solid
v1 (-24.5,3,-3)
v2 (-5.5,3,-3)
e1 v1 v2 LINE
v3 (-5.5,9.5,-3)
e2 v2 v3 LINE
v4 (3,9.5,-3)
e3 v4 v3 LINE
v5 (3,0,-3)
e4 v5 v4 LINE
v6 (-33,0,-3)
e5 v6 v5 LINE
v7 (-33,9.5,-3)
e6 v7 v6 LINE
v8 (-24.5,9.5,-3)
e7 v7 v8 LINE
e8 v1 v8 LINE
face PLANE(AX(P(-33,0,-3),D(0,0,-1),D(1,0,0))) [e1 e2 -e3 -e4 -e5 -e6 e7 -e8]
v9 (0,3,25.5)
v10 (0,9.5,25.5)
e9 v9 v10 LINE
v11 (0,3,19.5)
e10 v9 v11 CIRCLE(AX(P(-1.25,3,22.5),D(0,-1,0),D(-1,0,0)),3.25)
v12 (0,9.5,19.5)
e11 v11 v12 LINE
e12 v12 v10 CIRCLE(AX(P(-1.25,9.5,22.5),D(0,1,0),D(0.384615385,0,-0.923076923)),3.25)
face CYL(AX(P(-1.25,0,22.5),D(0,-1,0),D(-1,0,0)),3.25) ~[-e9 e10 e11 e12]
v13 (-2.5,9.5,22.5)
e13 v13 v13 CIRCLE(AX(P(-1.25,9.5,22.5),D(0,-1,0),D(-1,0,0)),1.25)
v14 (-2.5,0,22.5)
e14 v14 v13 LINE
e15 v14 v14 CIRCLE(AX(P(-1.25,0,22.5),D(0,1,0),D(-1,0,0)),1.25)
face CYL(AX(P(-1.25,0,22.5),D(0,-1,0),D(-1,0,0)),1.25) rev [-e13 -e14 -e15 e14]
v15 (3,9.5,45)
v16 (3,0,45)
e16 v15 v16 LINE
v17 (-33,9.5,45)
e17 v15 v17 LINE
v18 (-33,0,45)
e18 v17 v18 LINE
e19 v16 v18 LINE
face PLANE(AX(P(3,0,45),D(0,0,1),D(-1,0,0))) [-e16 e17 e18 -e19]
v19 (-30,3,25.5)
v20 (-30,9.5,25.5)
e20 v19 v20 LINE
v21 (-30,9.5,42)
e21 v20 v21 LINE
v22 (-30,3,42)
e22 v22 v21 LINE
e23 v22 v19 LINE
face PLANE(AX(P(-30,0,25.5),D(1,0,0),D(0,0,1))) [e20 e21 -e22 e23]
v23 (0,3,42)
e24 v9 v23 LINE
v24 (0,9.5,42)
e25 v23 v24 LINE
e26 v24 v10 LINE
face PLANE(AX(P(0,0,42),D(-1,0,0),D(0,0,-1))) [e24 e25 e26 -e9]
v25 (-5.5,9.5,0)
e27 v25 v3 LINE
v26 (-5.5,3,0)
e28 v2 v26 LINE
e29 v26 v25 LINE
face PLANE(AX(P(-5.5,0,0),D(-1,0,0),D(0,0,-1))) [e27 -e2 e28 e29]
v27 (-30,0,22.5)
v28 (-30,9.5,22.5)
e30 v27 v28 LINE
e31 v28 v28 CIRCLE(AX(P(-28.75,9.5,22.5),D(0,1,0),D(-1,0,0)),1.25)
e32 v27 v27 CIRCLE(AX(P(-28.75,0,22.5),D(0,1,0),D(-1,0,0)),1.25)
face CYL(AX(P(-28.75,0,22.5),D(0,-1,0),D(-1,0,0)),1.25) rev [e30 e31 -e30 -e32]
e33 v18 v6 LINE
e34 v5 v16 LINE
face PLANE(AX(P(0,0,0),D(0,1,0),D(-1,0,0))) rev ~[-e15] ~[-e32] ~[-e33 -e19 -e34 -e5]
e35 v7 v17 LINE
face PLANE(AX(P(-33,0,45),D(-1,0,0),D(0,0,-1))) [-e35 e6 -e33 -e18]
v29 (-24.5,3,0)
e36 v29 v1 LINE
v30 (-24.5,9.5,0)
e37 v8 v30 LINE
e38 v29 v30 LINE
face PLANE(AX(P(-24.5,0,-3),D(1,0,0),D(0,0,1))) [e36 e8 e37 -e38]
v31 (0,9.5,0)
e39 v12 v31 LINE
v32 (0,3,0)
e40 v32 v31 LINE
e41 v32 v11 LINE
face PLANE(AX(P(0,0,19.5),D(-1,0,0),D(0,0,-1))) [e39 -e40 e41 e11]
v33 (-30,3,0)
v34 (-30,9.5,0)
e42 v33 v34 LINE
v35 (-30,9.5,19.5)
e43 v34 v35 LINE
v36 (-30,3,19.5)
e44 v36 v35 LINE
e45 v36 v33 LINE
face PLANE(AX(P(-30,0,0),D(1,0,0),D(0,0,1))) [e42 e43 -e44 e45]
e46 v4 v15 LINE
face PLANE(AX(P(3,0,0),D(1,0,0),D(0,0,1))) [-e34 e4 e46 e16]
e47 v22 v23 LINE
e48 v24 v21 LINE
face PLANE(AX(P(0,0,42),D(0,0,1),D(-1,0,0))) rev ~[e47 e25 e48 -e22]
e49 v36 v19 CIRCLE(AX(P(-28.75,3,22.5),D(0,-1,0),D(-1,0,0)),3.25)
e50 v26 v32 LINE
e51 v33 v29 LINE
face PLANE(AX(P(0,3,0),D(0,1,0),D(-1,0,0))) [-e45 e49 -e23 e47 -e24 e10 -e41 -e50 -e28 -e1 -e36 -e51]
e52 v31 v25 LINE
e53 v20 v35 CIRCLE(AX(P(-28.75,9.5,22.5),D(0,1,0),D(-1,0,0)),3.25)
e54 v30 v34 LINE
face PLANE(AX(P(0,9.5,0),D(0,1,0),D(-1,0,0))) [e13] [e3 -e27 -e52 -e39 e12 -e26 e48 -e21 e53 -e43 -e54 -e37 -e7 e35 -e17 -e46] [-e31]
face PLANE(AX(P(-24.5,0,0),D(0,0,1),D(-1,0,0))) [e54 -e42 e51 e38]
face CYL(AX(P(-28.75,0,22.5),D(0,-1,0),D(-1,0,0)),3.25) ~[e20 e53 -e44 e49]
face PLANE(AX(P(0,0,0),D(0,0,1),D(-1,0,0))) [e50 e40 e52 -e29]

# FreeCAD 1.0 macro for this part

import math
import FreeCAD as App
import Part
import Sketcher
Q = App.Units.Quantity


def add_polygon(sketch, points):
    """Adds a closed chain of lines whose ends are joined by coincident constraints."""
    first, n = sketch.GeometryCount, len(points)
    for a, b in zip(points, points[1:] + points[:1]):
        sketch.addGeometry(Part.LineSegment(App.Vector(*a, 0), App.Vector(*b, 0)), False)
    for i in range(n):
        sketch.addConstraint(Sketcher.Constraint("Coincident", first + i, 2, first + (i + 1) % n, 1))

doc = App.newDocument("Part")
params = doc.addObject("Spreadsheet::Sheet", "Params")
for row, (alias, value) in enumerate([
    ("sketch1_diameter", "2.5 mm"),
    ("sketch1_width", "36 mm"),
    ("pad1_length", "3 mm"),
    ("sketch2_diameter", "2.5 mm"),
    ("sketch2_width", "30 mm"),
    ("sketch2_height", "3 mm"),
    ("sketch2_radius", "3.25 mm"),
    ("sketch2_height2", "19.5 mm"),
    ("pad2_length", "9.5 mm"),
], start=1):
    params.set(f"A{row}", alias)
    params.set(f"B{row}", "=" + value)
    params.setAlias(f"B{row}", alias)

body = doc.addObject("PartDesign::Body", "Body")

# Sketch on XZ plane
sketch1 = doc.addObject("Sketcher::SketchObject", "Sketch")
body.addObject(sketch1)
sketch1.AttachmentSupport = (doc.XZ_Plane, [""])
sketch1.MapMode = "FlatFace"
add_polygon(sketch1, [(3, 45), (3, -3), (-33, -3), (-33, 45)])  # lines 0-3
sketch1.addGeometry(Part.Circle(App.Vector(-1.25, 22.5, 0), App.Vector(0, 0, 1), 1.25), False)  # 4
sketch1.addGeometry(Part.Circle(App.Vector(-28.75, 22.5, 0), App.Vector(0, 0, 1), 1.25), False)  # 5
sketch1.addConstraint([
    Sketcher.Constraint("Vertical", 0),
    Sketcher.Constraint("Horizontal", 1),
    Sketcher.Constraint("Vertical", 2),
    Sketcher.Constraint("Horizontal", 3),
    Sketcher.Constraint("Equal", 4, 5),
    Sketcher.Constraint("Horizontal", 4, 3, 5, 3),
    Sketcher.Constraint("Diameter", 4, Q("2.5 mm")),
    Sketcher.Constraint("DistanceX", -1, 1, 0, 2, Q("3 mm")),
    Sketcher.Constraint("DistanceY", 0, 2, -1, 1, Q("3 mm")),
    Sketcher.Constraint("DistanceY", -1, 1, 2, 2, Q("45 mm")),
    Sketcher.Constraint("DistanceX", 1, 2, 1, 1, Q("36 mm")),
    Sketcher.Constraint("DistanceY", -1, 1, 4, 3, Q("22.5 mm")),
    Sketcher.Constraint("DistanceX", 5, 3, 4, 3, Q("27.5 mm")),
    Sketcher.Constraint("DistanceX", 4, 3, -1, 1, Q("1.25 mm")),
])
sketch1.setExpression("Constraints[10]", "Params.sketch1_diameter")
sketch1.setExpression("Constraints[14]", "Params.sketch1_width")
pad1 = doc.addObject("PartDesign::Pad", "Pad")
body.addObject(pad1)
pad1.Profile = sketch1
pad1.setExpression("Length", "Params.pad1_length")
pad1.Reversed = True

# Sketch on XZ plane
sketch2 = doc.addObject("Sketcher::SketchObject", "Sketch001")
body.addObject(sketch2)
sketch2.AttachmentSupport = (doc.XZ_Plane, [""])
sketch2.MapMode = "FlatFace"
sketch2.addGeometry([
    Part.LineSegment(App.Vector(3, 45, 0), App.Vector(3, -3, 0)),  # 0
    Part.LineSegment(App.Vector(3, -3, 0), App.Vector(-5.5, -3, 0)),  # 1
    Part.LineSegment(App.Vector(-5.5, -3, 0), App.Vector(-5.5, 0, 0)),  # 2
    Part.LineSegment(App.Vector(-5.5, 0, 0), App.Vector(0, 0, 0)),  # 3
    Part.LineSegment(App.Vector(0, 0, 0), App.Vector(0, 19.5, 0)),  # 4
    Part.ArcOfCircle(Part.Circle(App.Vector(-1.25, 22.5, 0), App.Vector(0, 0, 1), 3.25), math.radians(67.380135), math.radians(292.619865)),  # 5
    Part.LineSegment(App.Vector(0, 25.5, 0), App.Vector(0, 42, 0)),  # 6
    Part.LineSegment(App.Vector(0, 42, 0), App.Vector(-30, 42, 0)),  # 7
    Part.LineSegment(App.Vector(-30, 42, 0), App.Vector(-30, 25.5, 0)),  # 8
    Part.ArcOfCircle(Part.Circle(App.Vector(-28.75, 22.5, 0), App.Vector(0, 0, 1), 3.25), math.radians(-112.619865), math.radians(112.619865)),  # 9
    Part.LineSegment(App.Vector(-30, 19.5, 0), App.Vector(-30, 0, 0)),  # 10
    Part.LineSegment(App.Vector(-30, 0, 0), App.Vector(-24.5, 0, 0)),  # 11
    Part.LineSegment(App.Vector(-24.5, 0, 0), App.Vector(-24.5, -3, 0)),  # 12
    Part.LineSegment(App.Vector(-24.5, -3, 0), App.Vector(-33, -3, 0)),  # 13
    Part.LineSegment(App.Vector(-33, -3, 0), App.Vector(-33, 45, 0)),  # 14
    Part.LineSegment(App.Vector(-33, 45, 0), App.Vector(3, 45, 0)),  # 15
    Part.Circle(App.Vector(-1.25, 22.5, 0), App.Vector(0, 0, 1), 1.25),  # 16
    Part.Circle(App.Vector(-28.75, 22.5, 0), App.Vector(0, 0, 1), 1.25),  # 17
], False)
sketch2.addConstraint([
    Sketcher.Constraint("Coincident", 0, 2, 1, 1),
    Sketcher.Constraint("Coincident", 1, 2, 2, 1),
    Sketcher.Constraint("Coincident", 2, 2, 3, 1),
    Sketcher.Constraint("Coincident", 3, 2, 4, 1),
    Sketcher.Constraint("Coincident", 4, 2, 5, 2),
    Sketcher.Constraint("Coincident", 5, 1, 6, 1),
    Sketcher.Constraint("Coincident", 6, 2, 7, 1),
    Sketcher.Constraint("Coincident", 7, 2, 8, 1),
    Sketcher.Constraint("Coincident", 8, 2, 9, 2),
    Sketcher.Constraint("Coincident", 9, 1, 10, 1),
    Sketcher.Constraint("Coincident", 10, 2, 11, 1),
    Sketcher.Constraint("Coincident", 11, 2, 12, 1),
    Sketcher.Constraint("Coincident", 12, 2, 13, 1),
    Sketcher.Constraint("Coincident", 13, 2, 14, 1),
    Sketcher.Constraint("Coincident", 14, 2, 15, 1),
    Sketcher.Constraint("Coincident", 15, 2, 0, 1),
    Sketcher.Constraint("Vertical", 0),
    Sketcher.Constraint("Horizontal", 1),
    Sketcher.Constraint("Vertical", 2),
    Sketcher.Constraint("Horizontal", 3),
    Sketcher.Constraint("Vertical", 4),
    Sketcher.Constraint("Vertical", 6),
    Sketcher.Constraint("Horizontal", 7),
    Sketcher.Constraint("Vertical", 8),
    Sketcher.Constraint("Vertical", 10),
    Sketcher.Constraint("Horizontal", 11),
    Sketcher.Constraint("Vertical", 12),
    Sketcher.Constraint("Horizontal", 13),
    Sketcher.Constraint("Vertical", 14),
    Sketcher.Constraint("Horizontal", 15),
    Sketcher.Constraint("Coincident", 3, 2, -1, 1),
    Sketcher.Constraint("Coincident", 16, 3, 5, 3),
    Sketcher.Constraint("Coincident", 17, 3, 9, 3),
    Sketcher.Constraint("Equal", 5, 9),
    Sketcher.Constraint("Equal", 16, 17),
    Sketcher.Constraint("PointOnObject", 5, 1, -2),
    Sketcher.Constraint("PointOnObject", 10, 2, -1),
    Sketcher.Constraint("Horizontal", 5, 3, 9, 3),
    Sketcher.Constraint("Horizontal", 5, 1, 8, 2),
    Sketcher.Constraint("Horizontal", 4, 2, 9, 1),
    Sketcher.Constraint("Horizontal", 1, 2, 12, 2),
    Sketcher.Constraint("Equal", 3, 11),
    Sketcher.Constraint("Equal", 1, 13),
    Sketcher.Constraint("Diameter", 16, Q("2.5 mm")),
    Sketcher.Constraint("DistanceX", 7, 2, 7, 1, Q("30 mm")),
    Sketcher.Constraint("DistanceY", 2, 1, 2, 2, Q("3 mm")),
    Sketcher.Constraint("DistanceX", -1, 1, 0, 2, Q("3 mm")),
    Sketcher.Constraint("DistanceY", -1, 1, 14, 2, Q("45 mm")),
    Sketcher.Constraint("DistanceY", 4, 2, 5, 3, Q("3 mm")),
    Sketcher.Constraint("DistanceX", 11, 2, 2, 2, Q("19 mm")),
    Sketcher.Constraint("DistanceY", 7, 2, 14, 2, Q("3 mm")),
    Sketcher.Constraint("Radius", 5, Q("3.25 mm")),
    Sketcher.Constraint("DistanceY", 4, 1, 4, 2, Q("19.5 mm")),
])
sketch2.setExpression("Constraints[43]", "Params.sketch2_diameter")
sketch2.setExpression("Constraints[44]", "Params.sketch2_width")
sketch2.setExpression("Constraints[45]", "Params.sketch2_height")
sketch2.setExpression("Constraints[51]", "Params.sketch2_radius")
sketch2.setExpression("Constraints[52]", "Params.sketch2_height2")
pad2 = doc.addObject("PartDesign::Pad", "Pad001")
body.addObject(pad2)
pad2.Profile = sketch2
pad2.setExpression("Length", "Params.pad2_length")
pad2.Reversed = True

doc.recompute()
